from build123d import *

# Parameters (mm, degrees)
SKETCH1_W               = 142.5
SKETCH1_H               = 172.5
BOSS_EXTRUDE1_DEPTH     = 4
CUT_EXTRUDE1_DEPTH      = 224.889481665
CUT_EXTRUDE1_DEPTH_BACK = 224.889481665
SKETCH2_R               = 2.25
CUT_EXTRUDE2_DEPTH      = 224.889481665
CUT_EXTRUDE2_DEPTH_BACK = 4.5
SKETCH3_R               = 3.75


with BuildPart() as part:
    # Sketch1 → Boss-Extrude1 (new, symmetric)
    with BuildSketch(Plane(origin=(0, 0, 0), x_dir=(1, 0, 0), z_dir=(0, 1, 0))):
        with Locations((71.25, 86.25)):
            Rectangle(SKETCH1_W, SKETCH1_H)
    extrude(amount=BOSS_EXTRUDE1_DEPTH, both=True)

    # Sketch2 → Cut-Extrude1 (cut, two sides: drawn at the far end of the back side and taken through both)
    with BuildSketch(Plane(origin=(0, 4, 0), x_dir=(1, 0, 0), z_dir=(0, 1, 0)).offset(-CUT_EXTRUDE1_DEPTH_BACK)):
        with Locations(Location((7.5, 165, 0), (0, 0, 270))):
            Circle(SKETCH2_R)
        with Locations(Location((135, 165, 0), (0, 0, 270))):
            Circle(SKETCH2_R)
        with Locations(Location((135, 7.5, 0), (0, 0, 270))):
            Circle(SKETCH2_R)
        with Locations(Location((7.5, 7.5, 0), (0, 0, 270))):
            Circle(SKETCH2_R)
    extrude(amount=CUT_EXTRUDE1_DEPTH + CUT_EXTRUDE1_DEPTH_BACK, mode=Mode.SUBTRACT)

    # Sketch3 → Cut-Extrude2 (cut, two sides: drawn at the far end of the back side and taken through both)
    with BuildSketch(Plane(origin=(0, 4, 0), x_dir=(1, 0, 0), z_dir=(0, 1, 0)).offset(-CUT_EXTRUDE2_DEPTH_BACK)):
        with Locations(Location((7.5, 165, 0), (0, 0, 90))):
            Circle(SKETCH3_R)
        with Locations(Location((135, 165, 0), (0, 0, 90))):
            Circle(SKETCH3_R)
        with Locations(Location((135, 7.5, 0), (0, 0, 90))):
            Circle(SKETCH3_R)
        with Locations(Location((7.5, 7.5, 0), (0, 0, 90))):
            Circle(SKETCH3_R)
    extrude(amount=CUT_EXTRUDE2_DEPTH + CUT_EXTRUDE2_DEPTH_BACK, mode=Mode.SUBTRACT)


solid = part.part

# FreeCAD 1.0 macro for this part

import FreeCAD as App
import Part
import Sketcher

doc = App.newDocument("Part")
params = doc.addObject("Spreadsheet::Sheet", "Params")
for row, (alias, value) in enumerate([
    ("sketch1_width", "142.5 mm"),
    ("sketch1_height", "172.5 mm"),
    ("pad1_length", "8 mm"),
    ("sketch2_diameter", "4.5 mm"),
    ("sketch3_diameter", "7.5 mm"),
    ("pocket2_length", "224.889482 mm"),
    ("pocket2_length2", "4.5 mm"),
], start=1):
    params.set(f"A{row}", alias)
    params.set(f"B{row}", "=" + value)
    params.setAlias(f"B{row}", alias)

body = doc.addObject("PartDesign::Body", "Body")

sketch1 = body.newObject("Sketcher::SketchObject", "Sketch")
sketch1.AttachmentSupport = (doc.getObject("XZ_Plane"), [""])
sketch1.MapMode = "FlatFace"
sketch1.addGeometry([
    Part.LineSegment(App.Vector(0, -172, 0), App.Vector(0, 0, 0)),
    Part.LineSegment(App.Vector(0, 0, 0), App.Vector(142, 0, 0)),
    Part.LineSegment(App.Vector(142, 0, 0), App.Vector(142, -172, 0)),
    Part.LineSegment(App.Vector(142, -172, 0), App.Vector(0, -172, 0)),
], False)
sketch1.addConstraint([
    Sketcher.Constraint("Coincident", 0, 2, 1, 1),
    Sketcher.Constraint("Coincident", 1, 2, 2, 1),
    Sketcher.Constraint("Coincident", 2, 2, 3, 1),
    Sketcher.Constraint("Coincident", 3, 2, 0, 1),
    Sketcher.Constraint("Vertical", 0),
    Sketcher.Constraint("Horizontal", 1),
    Sketcher.Constraint("Vertical", 2),
    Sketcher.Constraint("Horizontal", 3),
    Sketcher.Constraint("Coincident", 0, 2, -1, 1),
    Sketcher.Constraint("DistanceX", 1, 1, 1, 2, 142.5),
    Sketcher.Constraint("DistanceY", 0, 1, 0, 2, 172.5),
])
sketch1.setExpression("Constraints[9]", "Params.sketch1_width")
sketch1.setExpression("Constraints[10]", "Params.sketch1_height")
pad1 = body.newObject("PartDesign::Pad", "Pad")
pad1.Profile = sketch1
pad1.setExpression("Length", "Params.pad1_length")
pad1.Midplane = True

sketch2 = body.newObject("Sketcher::SketchObject", "Sketch001")
sketch2.AttachmentSupport = (doc.getObject("XZ_Plane"), [""])
sketch2.MapMode = "FlatFace"
sketch2.AttachmentOffset = App.Placement(App.Vector(0, 0, -4), App.Rotation())
sketch2.addGeometry([
    Part.Circle(App.Vector(7.5, -165, 0), App.Vector(0, 0, 1), 2.2),
    Part.Circle(App.Vector(135, -165, 0), App.Vector(0, 0, 1), 2.2),
    Part.Circle(App.Vector(135, -7.5, 0), App.Vector(0, 0, 1), 2.2),
    Part.Circle(App.Vector(7.5, -7.5, 0), App.Vector(0, 0, 1), 2.2),
], False)
sketch2.addConstraint([
    Sketcher.Constraint("Equal", 0, 1),
    Sketcher.Constraint("Equal", 1, 2),
    Sketcher.Constraint("Equal", 2, 3),
    Sketcher.Constraint("Horizontal", 0, 3, 1, 3),
    Sketcher.Constraint("Horizontal", 2, 3, 3, 3),
    Sketcher.Constraint("Vertical", 1, 3, 2, 3),
    Sketcher.Constraint("Vertical", 0, 3, 3, 3),
    Sketcher.Constraint("Diameter", 0, 4.5),
    Sketcher.Constraint("DistanceY", 0, 3, -1, 1, 165.0),
    Sketcher.Constraint("DistanceX", -1, 1, 1, 3, 135.0),
    Sketcher.Constraint("DistanceX", -1, 1, 0, 3, 7.5),
    Sketcher.Constraint("DistanceY", 2, 3, -1, 1, 7.5),
])
sketch2.setExpression("Constraints[7]", "Params.sketch2_diameter")
pocket1 = body.newObject("PartDesign::Pocket", "Pocket")
pocket1.Profile = sketch2
pocket1.Type = "ThroughAll"
pocket1.Midplane = True

sketch3 = body.newObject("Sketcher::SketchObject", "Sketch002")
sketch3.AttachmentSupport = (doc.getObject("XZ_Plane"), [""])
sketch3.MapMode = "FlatFace"
sketch3.AttachmentOffset = App.Placement(App.Vector(0, 0, -4), App.Rotation())
sketch3.addGeometry([
    Part.Circle(App.Vector(7.5, -165, 0), App.Vector(0, 0, 1), 3.8),
    Part.Circle(App.Vector(135, -165, 0), App.Vector(0, 0, 1), 3.8),
    Part.Circle(App.Vector(135, -7.5, 0), App.Vector(0, 0, 1), 3.8),
    Part.Circle(App.Vector(7.5, -7.5, 0), App.Vector(0, 0, 1), 3.8),
], False)
sketch3.addConstraint([
    Sketcher.Constraint("Equal", 0, 1),
    Sketcher.Constraint("Equal", 1, 2),
    Sketcher.Constraint("Equal", 2, 3),
    Sketcher.Constraint("Horizontal", 0, 3, 1, 3),
    Sketcher.Constraint("Horizontal", 2, 3, 3, 3),
    Sketcher.Constraint("Vertical", 1, 3, 2, 3),
    Sketcher.Constraint("Vertical", 0, 3, 3, 3),
    Sketcher.Constraint("Diameter", 0, 7.5),
    Sketcher.Constraint("DistanceY", 0, 3, -1, 1, 165.0),
    Sketcher.Constraint("DistanceX", -1, 1, 1, 3, 135.0),
    Sketcher.Constraint("DistanceX", -1, 1, 0, 3, 7.5),
    Sketcher.Constraint("DistanceY", 2, 3, -1, 1, 7.5),
])
sketch3.setExpression("Constraints[7]", "Params.sketch3_diameter")
pocket2 = body.newObject("PartDesign::Pocket", "Pocket001")
pocket2.Profile = sketch3
pocket2.Type = "TwoLengths"
pocket2.setExpression("Length", "Params.pocket2_length")
pocket2.setExpression("Length2", "Params.pocket2_length2")

doc.recompute()
